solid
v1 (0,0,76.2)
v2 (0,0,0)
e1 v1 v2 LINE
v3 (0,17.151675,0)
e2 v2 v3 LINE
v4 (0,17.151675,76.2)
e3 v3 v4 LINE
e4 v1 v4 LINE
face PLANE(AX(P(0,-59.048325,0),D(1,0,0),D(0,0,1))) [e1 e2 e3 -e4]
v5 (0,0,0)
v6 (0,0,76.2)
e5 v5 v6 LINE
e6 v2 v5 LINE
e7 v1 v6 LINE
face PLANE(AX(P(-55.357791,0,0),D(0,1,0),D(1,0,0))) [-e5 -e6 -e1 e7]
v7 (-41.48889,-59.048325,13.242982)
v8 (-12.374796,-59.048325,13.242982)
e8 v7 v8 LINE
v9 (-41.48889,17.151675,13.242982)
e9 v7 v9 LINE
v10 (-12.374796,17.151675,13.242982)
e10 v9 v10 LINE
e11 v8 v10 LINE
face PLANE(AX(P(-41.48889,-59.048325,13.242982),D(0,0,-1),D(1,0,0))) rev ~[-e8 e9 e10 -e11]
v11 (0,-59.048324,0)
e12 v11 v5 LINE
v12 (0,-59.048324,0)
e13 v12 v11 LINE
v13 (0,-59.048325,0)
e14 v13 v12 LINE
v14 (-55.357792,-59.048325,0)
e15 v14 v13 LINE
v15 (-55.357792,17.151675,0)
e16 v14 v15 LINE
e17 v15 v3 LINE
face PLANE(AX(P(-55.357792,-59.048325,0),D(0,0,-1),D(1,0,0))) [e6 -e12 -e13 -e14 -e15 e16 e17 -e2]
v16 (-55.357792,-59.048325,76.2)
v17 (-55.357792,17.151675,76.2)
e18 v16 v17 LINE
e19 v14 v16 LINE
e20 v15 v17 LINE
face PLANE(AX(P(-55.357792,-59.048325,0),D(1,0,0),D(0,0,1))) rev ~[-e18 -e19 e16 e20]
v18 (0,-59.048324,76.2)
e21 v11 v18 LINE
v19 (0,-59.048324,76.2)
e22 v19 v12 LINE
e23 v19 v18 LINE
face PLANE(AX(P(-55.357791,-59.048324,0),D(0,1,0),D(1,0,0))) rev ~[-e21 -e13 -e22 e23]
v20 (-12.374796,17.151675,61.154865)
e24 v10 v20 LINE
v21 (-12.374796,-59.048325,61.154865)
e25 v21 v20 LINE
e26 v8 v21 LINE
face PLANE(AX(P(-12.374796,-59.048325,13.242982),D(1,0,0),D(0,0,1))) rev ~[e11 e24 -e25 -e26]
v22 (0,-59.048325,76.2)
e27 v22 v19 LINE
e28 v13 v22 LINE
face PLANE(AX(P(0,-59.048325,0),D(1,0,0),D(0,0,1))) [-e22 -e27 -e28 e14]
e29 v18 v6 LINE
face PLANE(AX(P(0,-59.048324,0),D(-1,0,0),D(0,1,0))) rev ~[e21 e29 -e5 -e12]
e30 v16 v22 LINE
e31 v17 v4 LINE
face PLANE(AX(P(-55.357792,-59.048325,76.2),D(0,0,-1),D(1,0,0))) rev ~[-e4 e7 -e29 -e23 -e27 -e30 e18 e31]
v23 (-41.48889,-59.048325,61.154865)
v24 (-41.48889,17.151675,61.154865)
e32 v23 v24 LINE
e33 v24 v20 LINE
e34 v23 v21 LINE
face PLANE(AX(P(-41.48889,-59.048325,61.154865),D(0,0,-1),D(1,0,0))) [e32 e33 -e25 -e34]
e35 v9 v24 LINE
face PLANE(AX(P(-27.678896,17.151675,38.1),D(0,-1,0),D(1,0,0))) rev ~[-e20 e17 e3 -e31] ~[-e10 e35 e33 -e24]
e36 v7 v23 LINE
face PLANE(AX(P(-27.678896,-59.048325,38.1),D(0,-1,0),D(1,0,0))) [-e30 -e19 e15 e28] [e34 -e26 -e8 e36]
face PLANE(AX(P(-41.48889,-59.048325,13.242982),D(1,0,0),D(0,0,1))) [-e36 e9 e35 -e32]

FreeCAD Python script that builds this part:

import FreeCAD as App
import Part
import Sketcher

V = App.Vector
Q = App.Units.Quantity

doc = App.newDocument("Part")
body = doc.addObject("PartDesign::Body", "Body")

# Sketch on XY plane
sketch1 = doc.addObject("Sketcher::SketchObject", "Sketch")
body.addObject(sketch1)
sketch1.AttachmentSupport = (doc.XY_Plane, [""])
sketch1.MapMode = "FlatFace"
sketch1.addGeometry(Part.LineSegment(V(-55, 0, 0), V(-55, -59, 0)), False)
sketch1.addGeometry(Part.LineSegment(V(-55, -59, 0), V(0, -59, 0)), False)
sketch1.addGeometry(Part.LineSegment(V(0, -59, 0), V(0, 0, 0)), False)
sketch1.addGeometry(Part.LineSegment(V(0, 0, 0), V(-55, 0, 0)), False)
sketch1.addConstraint(Sketcher.Constraint("Coincident", 0, 2, 1, 1))
sketch1.addConstraint(Sketcher.Constraint("Coincident", 1, 2, 2, 1))
sketch1.addConstraint(Sketcher.Constraint("Coincident", 2, 2, 3, 1))
sketch1.addConstraint(Sketcher.Constraint("Coincident", 3, 2, 0, 1))
sketch1.addConstraint(Sketcher.Constraint("Vertical", 0))
sketch1.addConstraint(Sketcher.Constraint("Horizontal", 1))
sketch1.addConstraint(Sketcher.Constraint("Vertical", 2))
sketch1.addConstraint(Sketcher.Constraint("Horizontal", 3))
sketch1.addConstraint(Sketcher.Constraint("Coincident", 2, 2, -1, 1))
sketch1.addConstraint(Sketcher.Constraint("DistanceX", 1, 1, 1, 2, 55.357791))
sketch1.addConstraint(Sketcher.Constraint("DistanceY", 0, 2, 0, 1, 59.048325))
pad1 = doc.addObject("PartDesign::Pad", "Pad")
body.addObject(pad1)
pad1.Profile = sketch1
pad1.Length = Q("3 in")

# Sketch on XZ plane
sketch2 = doc.addObject("Sketcher::SketchObject", "Sketch001")
body.addObject(sketch2)
sketch2.AttachmentSupport = (doc.XZ_Plane, [""])
sketch2.MapMode = "FlatFace"
sketch2.AttachmentOffset = App.Placement(V(0, 0, 59.048325), App.Rotation())
sketch2.addGeometry(Part.LineSegment(V(-55, 76, 0), V(-55, 0, 0)), False)
sketch2.addGeometry(Part.LineSegment(V(-55, 0, 0), V(0, 0, 0)), False)
sketch2.addGeometry(Part.LineSegment(V(0, 0, 0), V(0, 76, 0)), False)
sketch2.addGeometry(Part.LineSegment(V(0, 76, 0), V(-55, 76, 0)), False)
sketch2.addConstraint(Sketcher.Constraint("Coincident", 0, 2, 1, 1))
sketch2.addConstraint(Sketcher.Constraint("Coincident", 1, 2, 2, 1))
sketch2.addConstraint(Sketcher.Constraint("Coincident", 2, 2, 3, 1))
sketch2.addConstraint(Sketcher.Constraint("Coincident", 3, 2, 0, 1))
sketch2.addConstraint(Sketcher.Constraint("Vertical", 0))
sketch2.addConstraint(Sketcher.Constraint("Horizontal", 1))
sketch2.addConstraint(Sketcher.Constraint("Vertical", 2))
sketch2.addConstraint(Sketcher.Constraint("Horizontal", 3))
sketch2.addConstraint(Sketcher.Constraint("Coincident", 1, 2, -1, 1))
sketch2.addConstraint(Sketcher.Constraint("DistanceY", 0, 2, 0, 1, Q("3 in")))
sketch2.addConstraint(Sketcher.Constraint("DistanceX", 1, 1, 1, 2, 55.357792))
pad2 = doc.addObject("PartDesign::Pad", "Pad001")
body.addObject(pad2)
pad2.Profile = sketch2
pad2.Length = Q("3 in")
pad2.Reversed = True

# Sketch on XZ plane
sketch3 = doc.addObject("Sketcher::SketchObject", "Sketch002")
body.addObject(sketch3)
sketch3.AttachmentSupport = (doc.XZ_Plane, [""])
sketch3.MapMode = "FlatFace"
sketch3.AttachmentOffset = App.Placement(V(0, 0, 59.048325), App.Rotation())
sketch3.addGeometry(Part.LineSegment(V(-41, 61, 0), V(-41, 13, 0)), False)
sketch3.addGeometry(Part.LineSegment(V(-41, 13, 0), V(-12, 13, 0)), False)
sketch3.addGeometry(Part.LineSegment(V(-12, 13, 0), V(-12, 61, 0)), False)
sketch3.addGeometry(Part.LineSegment(V(-12, 61, 0), V(-41, 61, 0)), False)
sketch3.addConstraint(Sketcher.Constraint("Coincident", 0, 2, 1, 1))
sketch3.addConstraint(Sketcher.Constraint("Coincident", 1, 2, 2, 1))
sketch3.addConstraint(Sketcher.Constraint("Coincident", 2, 2, 3, 1))
sketch3.addConstraint(Sketcher.Constraint("Coincident", 3, 2, 0, 1))
sketch3.addConstraint(Sketcher.Constraint("Vertical", 0))
sketch3.addConstraint(Sketcher.Constraint("Horizontal", 1))
sketch3.addConstraint(Sketcher.Constraint("Vertical", 2))
sketch3.addConstraint(Sketcher.Constraint("Horizontal", 3))
sketch3.addConstraint(Sketcher.Constraint("DistanceX", 1, 1, 1, 2, 29.114094))
sketch3.addConstraint(Sketcher.Constraint("DistanceY", 0, 2, 0, 1, 47.911883))
sketch3.addConstraint(Sketcher.Constraint("DistanceX", 0, 2, -1, 1, 41.48889))
sketch3.addConstraint(Sketcher.Constraint("DistanceY", -1, 1, 0, 2, 13.242982))
pocket1 = doc.addObject("PartDesign::Pocket", "Pocket")
body.addObject(pocket1)
pocket1.Profile = sketch3
pocket1.Type = "ThroughAll"

doc.recompute()
